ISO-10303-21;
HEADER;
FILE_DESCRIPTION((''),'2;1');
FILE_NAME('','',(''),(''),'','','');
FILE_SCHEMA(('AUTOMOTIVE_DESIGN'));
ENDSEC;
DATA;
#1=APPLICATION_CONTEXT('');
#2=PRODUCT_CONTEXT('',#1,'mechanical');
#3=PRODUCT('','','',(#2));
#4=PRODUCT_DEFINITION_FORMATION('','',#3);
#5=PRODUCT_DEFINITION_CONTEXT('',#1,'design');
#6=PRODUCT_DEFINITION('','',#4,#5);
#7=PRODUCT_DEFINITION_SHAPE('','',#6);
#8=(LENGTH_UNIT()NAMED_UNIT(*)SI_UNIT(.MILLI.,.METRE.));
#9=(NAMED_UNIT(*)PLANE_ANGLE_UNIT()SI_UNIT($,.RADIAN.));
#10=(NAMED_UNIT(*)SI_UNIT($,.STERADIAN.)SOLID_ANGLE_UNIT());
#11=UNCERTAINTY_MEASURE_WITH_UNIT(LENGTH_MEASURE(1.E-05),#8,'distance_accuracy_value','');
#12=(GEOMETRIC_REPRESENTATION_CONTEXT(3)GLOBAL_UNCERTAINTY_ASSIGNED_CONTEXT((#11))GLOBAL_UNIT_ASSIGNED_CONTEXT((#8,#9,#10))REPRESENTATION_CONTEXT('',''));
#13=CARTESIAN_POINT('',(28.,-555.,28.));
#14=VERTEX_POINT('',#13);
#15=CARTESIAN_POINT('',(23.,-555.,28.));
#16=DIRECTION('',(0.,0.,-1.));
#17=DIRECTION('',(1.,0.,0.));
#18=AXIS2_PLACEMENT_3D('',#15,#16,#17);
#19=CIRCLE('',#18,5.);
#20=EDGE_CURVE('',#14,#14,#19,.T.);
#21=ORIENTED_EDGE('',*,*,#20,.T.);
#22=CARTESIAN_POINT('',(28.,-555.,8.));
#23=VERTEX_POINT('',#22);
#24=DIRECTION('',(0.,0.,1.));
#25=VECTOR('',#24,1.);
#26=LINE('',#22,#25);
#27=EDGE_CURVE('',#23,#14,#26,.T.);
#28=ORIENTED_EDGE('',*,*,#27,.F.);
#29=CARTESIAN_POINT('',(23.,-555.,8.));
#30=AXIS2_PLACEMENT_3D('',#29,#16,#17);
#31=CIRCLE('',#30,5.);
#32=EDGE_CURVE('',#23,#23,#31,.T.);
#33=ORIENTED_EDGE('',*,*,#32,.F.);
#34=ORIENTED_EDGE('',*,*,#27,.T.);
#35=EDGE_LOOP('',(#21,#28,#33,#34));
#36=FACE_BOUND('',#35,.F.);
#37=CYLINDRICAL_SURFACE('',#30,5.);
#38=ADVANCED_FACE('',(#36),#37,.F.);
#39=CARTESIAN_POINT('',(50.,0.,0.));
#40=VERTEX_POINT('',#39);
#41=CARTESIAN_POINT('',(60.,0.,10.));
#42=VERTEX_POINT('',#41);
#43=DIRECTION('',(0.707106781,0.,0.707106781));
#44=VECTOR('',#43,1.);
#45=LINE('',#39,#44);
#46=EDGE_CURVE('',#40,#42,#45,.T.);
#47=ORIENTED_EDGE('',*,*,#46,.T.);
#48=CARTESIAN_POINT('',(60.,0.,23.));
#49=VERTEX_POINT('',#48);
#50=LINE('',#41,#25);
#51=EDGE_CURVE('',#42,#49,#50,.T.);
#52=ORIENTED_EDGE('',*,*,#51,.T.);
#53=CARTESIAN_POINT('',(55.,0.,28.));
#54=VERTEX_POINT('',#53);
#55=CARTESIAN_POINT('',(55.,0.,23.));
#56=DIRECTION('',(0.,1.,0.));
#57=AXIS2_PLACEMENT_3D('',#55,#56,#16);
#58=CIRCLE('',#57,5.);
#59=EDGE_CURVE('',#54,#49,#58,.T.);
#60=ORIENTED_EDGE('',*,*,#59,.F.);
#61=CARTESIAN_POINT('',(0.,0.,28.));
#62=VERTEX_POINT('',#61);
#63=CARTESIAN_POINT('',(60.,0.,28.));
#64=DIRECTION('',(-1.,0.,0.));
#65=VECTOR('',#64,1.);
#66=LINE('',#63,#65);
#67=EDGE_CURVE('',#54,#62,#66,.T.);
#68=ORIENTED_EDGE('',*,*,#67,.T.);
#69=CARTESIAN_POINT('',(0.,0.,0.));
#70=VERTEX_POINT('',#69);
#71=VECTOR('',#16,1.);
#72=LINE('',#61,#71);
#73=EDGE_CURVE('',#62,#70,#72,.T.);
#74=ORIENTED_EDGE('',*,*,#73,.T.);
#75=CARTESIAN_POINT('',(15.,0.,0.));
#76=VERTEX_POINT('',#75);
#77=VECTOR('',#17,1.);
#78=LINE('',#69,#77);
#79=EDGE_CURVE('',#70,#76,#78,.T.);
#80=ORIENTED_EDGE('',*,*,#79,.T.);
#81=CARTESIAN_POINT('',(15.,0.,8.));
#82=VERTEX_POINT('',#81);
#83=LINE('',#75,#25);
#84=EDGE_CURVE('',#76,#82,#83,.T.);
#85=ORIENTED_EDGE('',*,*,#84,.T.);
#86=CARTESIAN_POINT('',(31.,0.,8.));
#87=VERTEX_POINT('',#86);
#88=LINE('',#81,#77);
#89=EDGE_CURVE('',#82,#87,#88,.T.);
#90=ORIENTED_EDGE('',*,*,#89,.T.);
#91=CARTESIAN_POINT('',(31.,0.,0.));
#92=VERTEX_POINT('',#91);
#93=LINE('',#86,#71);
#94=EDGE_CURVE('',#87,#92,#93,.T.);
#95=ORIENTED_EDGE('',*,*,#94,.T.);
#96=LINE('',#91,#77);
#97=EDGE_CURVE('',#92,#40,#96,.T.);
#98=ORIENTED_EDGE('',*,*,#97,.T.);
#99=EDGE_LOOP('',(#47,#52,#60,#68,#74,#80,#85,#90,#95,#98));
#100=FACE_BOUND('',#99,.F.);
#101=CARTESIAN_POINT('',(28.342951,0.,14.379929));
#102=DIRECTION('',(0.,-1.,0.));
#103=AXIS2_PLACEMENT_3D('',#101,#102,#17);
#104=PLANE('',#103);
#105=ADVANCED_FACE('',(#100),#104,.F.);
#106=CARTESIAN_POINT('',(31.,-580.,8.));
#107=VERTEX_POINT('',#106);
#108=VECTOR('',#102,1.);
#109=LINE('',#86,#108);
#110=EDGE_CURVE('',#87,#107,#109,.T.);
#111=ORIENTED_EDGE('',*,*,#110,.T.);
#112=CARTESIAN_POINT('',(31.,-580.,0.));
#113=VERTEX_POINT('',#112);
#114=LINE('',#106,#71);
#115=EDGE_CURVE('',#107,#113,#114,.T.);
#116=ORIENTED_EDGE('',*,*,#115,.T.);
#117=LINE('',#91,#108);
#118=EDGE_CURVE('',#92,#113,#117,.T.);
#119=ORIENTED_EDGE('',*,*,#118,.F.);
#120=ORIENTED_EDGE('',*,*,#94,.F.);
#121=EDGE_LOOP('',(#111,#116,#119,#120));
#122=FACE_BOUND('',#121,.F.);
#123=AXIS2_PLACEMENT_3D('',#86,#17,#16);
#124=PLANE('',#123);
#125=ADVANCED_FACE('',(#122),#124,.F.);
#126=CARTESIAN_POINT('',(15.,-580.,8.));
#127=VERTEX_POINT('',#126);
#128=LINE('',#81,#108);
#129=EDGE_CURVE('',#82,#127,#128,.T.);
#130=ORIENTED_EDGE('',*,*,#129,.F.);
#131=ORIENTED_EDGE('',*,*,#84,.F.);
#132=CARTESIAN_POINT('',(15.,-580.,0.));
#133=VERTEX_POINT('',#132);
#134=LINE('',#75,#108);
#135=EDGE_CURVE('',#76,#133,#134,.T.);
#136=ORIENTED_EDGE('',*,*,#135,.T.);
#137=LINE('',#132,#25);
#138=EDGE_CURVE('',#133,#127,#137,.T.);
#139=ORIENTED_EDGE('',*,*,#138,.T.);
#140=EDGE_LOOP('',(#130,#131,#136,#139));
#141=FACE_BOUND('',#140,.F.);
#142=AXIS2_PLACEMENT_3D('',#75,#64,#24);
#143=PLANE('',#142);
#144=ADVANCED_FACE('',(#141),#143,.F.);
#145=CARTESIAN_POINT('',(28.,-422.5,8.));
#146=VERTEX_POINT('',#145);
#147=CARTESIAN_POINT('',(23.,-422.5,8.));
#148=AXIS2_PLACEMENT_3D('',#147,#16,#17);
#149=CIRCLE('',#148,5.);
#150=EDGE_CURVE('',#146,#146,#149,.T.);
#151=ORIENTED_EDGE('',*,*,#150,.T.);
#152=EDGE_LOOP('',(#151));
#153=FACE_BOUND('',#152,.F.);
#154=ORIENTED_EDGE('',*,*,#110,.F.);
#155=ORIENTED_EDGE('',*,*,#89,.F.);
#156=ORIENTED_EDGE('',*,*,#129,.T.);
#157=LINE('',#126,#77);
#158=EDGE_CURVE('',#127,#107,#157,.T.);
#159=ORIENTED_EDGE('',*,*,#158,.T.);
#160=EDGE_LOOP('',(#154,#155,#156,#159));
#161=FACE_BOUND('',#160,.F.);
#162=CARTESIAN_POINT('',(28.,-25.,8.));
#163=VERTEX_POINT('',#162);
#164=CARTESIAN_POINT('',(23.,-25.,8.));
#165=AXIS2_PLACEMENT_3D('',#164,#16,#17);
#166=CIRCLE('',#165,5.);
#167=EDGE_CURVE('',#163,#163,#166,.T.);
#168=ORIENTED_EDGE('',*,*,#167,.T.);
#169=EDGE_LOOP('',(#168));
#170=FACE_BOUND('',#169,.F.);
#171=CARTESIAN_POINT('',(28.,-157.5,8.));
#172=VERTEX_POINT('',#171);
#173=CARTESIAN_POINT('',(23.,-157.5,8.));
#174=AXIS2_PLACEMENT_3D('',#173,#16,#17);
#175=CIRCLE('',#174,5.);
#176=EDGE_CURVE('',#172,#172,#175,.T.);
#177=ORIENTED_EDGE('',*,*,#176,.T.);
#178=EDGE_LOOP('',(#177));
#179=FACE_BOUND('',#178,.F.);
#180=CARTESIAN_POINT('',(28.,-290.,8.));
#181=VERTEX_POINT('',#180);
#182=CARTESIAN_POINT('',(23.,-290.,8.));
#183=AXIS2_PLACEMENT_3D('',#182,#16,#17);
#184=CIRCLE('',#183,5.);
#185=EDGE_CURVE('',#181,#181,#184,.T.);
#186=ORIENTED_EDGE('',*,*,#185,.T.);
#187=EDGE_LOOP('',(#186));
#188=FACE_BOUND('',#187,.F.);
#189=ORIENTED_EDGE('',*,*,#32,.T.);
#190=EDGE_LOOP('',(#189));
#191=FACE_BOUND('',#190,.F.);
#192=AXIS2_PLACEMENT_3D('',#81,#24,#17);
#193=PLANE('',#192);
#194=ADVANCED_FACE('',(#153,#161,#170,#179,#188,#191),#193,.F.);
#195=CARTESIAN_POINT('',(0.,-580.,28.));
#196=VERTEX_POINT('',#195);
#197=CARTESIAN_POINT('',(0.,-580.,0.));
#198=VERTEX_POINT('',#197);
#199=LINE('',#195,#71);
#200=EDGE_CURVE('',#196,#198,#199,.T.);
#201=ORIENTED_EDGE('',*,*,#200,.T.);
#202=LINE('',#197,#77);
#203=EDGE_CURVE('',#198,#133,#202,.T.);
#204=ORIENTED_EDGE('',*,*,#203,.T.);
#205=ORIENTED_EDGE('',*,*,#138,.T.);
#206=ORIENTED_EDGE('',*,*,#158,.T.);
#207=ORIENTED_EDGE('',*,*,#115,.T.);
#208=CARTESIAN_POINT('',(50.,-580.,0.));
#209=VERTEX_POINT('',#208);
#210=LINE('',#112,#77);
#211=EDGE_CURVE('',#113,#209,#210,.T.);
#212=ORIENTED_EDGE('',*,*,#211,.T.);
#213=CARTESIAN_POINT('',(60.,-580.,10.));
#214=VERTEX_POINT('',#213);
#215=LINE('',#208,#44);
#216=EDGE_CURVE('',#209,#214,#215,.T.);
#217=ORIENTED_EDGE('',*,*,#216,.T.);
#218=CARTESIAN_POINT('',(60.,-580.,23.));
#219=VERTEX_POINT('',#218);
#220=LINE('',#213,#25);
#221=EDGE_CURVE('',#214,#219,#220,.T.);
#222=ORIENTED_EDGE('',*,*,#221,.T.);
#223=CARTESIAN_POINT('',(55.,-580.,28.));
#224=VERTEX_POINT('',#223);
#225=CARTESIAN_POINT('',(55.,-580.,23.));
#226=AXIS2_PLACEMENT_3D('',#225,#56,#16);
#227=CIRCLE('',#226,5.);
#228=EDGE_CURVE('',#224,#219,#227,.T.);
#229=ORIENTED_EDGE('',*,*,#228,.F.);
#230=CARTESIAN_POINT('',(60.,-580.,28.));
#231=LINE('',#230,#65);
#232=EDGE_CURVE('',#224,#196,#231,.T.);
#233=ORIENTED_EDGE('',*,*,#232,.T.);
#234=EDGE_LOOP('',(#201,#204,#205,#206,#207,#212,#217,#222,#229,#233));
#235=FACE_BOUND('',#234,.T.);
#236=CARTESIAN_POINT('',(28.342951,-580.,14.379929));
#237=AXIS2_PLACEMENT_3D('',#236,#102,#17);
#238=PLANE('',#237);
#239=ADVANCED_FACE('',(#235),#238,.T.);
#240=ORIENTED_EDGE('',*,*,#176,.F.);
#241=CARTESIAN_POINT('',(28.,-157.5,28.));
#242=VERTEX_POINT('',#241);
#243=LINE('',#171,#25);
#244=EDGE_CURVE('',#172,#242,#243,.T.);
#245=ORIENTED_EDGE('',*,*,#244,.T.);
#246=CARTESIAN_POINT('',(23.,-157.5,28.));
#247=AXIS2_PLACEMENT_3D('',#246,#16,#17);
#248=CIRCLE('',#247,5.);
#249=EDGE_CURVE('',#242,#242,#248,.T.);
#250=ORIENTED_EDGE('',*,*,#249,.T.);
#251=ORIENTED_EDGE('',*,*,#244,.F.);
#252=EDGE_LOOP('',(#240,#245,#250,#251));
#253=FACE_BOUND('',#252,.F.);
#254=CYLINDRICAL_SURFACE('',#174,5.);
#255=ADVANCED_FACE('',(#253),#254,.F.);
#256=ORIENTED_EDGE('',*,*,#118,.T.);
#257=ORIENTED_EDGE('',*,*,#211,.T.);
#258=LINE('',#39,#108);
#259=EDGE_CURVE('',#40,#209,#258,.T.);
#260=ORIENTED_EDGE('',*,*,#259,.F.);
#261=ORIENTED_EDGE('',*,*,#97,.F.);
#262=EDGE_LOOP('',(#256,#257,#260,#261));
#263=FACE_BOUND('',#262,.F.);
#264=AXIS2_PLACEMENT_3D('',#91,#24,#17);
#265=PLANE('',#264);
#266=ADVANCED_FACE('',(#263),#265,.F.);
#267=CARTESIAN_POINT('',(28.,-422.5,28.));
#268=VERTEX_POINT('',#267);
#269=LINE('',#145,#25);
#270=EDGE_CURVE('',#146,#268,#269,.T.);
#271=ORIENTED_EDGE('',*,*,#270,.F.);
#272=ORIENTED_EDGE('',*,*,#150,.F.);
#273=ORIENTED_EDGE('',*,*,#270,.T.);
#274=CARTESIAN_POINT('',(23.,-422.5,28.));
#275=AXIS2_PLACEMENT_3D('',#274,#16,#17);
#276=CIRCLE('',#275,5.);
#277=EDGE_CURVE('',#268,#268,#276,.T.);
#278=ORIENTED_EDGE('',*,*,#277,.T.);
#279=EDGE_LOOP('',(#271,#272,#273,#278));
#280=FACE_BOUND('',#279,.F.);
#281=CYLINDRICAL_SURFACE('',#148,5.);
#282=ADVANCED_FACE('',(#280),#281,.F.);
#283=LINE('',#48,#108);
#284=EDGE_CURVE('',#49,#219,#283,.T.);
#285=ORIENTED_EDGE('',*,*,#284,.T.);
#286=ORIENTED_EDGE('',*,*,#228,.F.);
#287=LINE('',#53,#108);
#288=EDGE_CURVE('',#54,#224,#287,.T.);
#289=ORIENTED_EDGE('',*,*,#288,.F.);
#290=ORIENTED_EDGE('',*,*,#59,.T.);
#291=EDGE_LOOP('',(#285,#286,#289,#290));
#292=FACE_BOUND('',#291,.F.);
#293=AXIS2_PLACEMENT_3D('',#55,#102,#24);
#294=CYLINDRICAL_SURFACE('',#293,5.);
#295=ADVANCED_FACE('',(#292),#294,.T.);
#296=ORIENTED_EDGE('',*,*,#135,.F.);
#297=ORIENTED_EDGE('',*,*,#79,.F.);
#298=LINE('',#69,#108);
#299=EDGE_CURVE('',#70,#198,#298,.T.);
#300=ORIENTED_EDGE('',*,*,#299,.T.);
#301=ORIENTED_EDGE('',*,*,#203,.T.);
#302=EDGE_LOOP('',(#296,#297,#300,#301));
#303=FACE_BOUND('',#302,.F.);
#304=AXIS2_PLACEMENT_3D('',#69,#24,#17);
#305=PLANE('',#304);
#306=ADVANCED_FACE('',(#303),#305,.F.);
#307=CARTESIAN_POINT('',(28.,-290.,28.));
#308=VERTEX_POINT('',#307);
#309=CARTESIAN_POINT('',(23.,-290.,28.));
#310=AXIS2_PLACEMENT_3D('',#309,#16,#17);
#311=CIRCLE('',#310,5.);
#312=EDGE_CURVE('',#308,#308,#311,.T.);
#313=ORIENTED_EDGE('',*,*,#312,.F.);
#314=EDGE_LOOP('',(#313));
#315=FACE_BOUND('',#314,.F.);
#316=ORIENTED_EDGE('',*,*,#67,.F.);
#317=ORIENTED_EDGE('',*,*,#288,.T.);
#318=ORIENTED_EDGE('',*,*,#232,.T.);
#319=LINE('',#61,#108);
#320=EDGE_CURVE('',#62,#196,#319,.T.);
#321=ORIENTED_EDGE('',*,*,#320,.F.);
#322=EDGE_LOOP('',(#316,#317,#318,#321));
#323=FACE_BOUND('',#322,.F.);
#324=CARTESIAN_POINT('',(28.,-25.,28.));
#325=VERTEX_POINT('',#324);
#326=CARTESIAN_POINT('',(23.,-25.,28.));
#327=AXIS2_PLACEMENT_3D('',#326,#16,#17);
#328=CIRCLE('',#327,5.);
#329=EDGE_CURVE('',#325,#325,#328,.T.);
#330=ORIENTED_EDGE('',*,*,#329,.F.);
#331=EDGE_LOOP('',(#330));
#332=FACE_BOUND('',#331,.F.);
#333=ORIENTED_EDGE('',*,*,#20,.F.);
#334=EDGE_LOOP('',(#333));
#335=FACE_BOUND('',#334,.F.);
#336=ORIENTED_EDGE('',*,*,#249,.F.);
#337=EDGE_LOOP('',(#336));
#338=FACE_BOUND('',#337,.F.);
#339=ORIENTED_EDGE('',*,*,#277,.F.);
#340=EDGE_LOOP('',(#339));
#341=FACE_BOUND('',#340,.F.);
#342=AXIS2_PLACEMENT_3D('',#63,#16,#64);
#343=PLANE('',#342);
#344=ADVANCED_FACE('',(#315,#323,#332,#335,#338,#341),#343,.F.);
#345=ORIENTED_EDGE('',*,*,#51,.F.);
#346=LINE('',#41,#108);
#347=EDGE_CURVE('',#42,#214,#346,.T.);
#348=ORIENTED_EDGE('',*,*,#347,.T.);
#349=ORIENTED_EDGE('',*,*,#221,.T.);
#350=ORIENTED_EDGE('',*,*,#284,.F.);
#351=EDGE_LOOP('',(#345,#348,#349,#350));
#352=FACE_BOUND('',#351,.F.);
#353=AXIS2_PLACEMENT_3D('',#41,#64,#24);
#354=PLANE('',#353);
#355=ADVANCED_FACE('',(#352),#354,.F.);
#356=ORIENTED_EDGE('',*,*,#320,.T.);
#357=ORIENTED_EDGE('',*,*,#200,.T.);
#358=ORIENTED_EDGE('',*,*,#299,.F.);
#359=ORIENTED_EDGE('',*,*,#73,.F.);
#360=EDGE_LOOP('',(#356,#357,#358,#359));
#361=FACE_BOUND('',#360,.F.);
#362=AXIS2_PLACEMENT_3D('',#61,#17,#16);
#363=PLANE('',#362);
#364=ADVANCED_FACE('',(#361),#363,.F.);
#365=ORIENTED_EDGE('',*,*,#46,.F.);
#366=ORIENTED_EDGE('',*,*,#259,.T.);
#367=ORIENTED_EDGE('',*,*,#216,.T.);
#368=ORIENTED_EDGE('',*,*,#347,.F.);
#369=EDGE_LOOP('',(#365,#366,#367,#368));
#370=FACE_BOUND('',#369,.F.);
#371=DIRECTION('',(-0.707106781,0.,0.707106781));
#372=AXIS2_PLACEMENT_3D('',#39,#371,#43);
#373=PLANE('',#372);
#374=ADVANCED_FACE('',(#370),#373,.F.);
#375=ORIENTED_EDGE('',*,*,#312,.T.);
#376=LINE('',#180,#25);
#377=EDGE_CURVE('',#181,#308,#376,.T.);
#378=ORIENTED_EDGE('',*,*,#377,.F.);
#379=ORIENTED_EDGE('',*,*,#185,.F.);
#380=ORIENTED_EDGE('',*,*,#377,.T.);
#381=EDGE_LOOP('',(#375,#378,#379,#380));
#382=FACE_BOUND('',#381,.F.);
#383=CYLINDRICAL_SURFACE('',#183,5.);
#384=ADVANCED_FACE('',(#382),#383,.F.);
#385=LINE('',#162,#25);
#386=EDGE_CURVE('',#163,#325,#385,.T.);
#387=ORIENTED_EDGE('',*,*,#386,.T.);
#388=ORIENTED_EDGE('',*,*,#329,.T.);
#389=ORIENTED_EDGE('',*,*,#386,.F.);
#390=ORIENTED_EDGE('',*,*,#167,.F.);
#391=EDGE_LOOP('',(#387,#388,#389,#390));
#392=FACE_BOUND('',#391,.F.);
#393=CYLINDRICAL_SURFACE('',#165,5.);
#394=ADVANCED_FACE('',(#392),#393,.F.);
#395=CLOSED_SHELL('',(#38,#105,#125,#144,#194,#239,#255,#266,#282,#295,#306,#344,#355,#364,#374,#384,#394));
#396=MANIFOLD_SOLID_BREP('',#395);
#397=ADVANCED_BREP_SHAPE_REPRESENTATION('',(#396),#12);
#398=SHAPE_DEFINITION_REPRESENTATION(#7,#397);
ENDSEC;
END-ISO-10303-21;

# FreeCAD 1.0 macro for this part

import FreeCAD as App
import Part
import Sketcher

V = App.Vector


def edges_at(feature, points):
    """Names of the edges that pass closest to the given points."""
    edges = feature.Shape.Edges
    near = lambda p: min(range(len(edges)), key=lambda i: edges[i].distToShape(Part.Vertex(*p))[0])
    return sorted({f"Edge{near(p) + 1}" for p in points})


def add_polygon(sketch, points):
    """Adds a closed chain of lines whose ends are joined by coincident constraints."""
    first, n = sketch.GeometryCount, len(points)
    for a, b in zip(points, points[1:] + points[:1]):
        sketch.addGeometry(Part.LineSegment(App.Vector(*a, 0), App.Vector(*b, 0)), False)
    for i in range(n):
        sketch.addConstraint(Sketcher.Constraint("Coincident", first + i, 2, first + (i + 1) % n, 1))

doc = App.newDocument("Part")
body = doc.addObject("PartDesign::Body", "Body")

# Sketch on XZ plane
sketch1 = doc.addObject("Sketcher::SketchObject", "Sketch")
body.addObject(sketch1)
sketch1.AttachmentSupport = (doc.XZ_Plane, [""])
sketch1.MapMode = "FlatFace"
add_polygon(sketch1, [(0, 28), (0, 0), (15, 0), (15, 8), (31, 8), (31, 0), (50, 0), (60, 10), (60, 28)])  # lines 0-8
sketch1.addConstraint([
    Sketcher.Constraint("Vertical", 0),
    Sketcher.Constraint("Horizontal", 1),
    Sketcher.Constraint("Vertical", 2),
    Sketcher.Constraint("Horizontal", 3),
    Sketcher.Constraint("Vertical", 4),
    Sketcher.Constraint("Horizontal", 5),
    Sketcher.Constraint("Vertical", 7),
    Sketcher.Constraint("Horizontal", 8),
    Sketcher.Constraint("Coincident", 0, 2, -1, 1),
    Sketcher.Constraint("PointOnObject", 4, 2, -1),
    Sketcher.Constraint("DistanceX", 1, 1, 1, 2, 15.0),
    Sketcher.Constraint("DistanceX", 3, 1, 3, 2, 16.0),
    Sketcher.Constraint("DistanceX", 5, 1, 5, 2, 19.0),
    Sketcher.Constraint("DistanceX", 8, 2, 8, 1, 60.0),
    Sketcher.Constraint("DistanceY", 0, 2, 0, 1, 28.0),
    Sketcher.Constraint("DistanceY", 2, 1, 2, 2, 8.0),
    Sketcher.Constraint("DistanceY", 7, 1, 7, 2, 18.0),
])
pad1 = doc.addObject("PartDesign::Pad", "Pad")
body.addObject(pad1)
pad1.Profile = sketch1
pad1.Length = 580

# Sketch on XY plane
sketch2 = doc.addObject("Sketcher::SketchObject", "Sketch001")
body.addObject(sketch2)
sketch2.AttachmentSupport = (doc.XY_Plane, [""])
sketch2.MapMode = "FlatFace"
sketch2.AttachmentOffset = App.Placement(V(0, 0, 8), App.Rotation())
sketch2.addGeometry([
    Part.Circle(V(23, -25, 0), V(0, 0, 1), 5),  # 0
    Part.Circle(V(23, -158, 0), V(0, 0, 1), 5),  # 1
    Part.Circle(V(23, -290, 0), V(0, 0, 1), 5),  # 2
    Part.Circle(V(23, -422, 0), V(0, 0, 1), 5),  # 3
    Part.Circle(V(23, -555, 0), V(0, 0, 1), 5),  # 4
], False)
sketch2.addConstraint([
    Sketcher.Constraint("Equal", 0, 1),
    Sketcher.Constraint("Equal", 1, 2),
    Sketcher.Constraint("Equal", 2, 3),
    Sketcher.Constraint("Equal", 3, 4),
    Sketcher.Constraint("Vertical", 0, 3, 1, 3),
    Sketcher.Constraint("Vertical", 1, 3, 2, 3),
    Sketcher.Constraint("Vertical", 2, 3, 3, 3),
    Sketcher.Constraint("Vertical", 3, 3, 4, 3),
    Sketcher.Constraint("Diameter", 0, 10.0),
    Sketcher.Constraint("DistanceX", -1, 1, 0, 3, 23.0),
    Sketcher.Constraint("DistanceY", 0, 3, -1, 1, 25.0),
    Sketcher.Constraint("DistanceY", 2, 3, -1, 1, 290.0),
    Sketcher.Constraint("DistanceY", 4, 3, -1, 1, 555.0),
    Sketcher.Constraint("DistanceY", 3, 3, 1, 3, 265.0),
    Sketcher.Constraint("DistanceY", 1, 3, -1, 1, 157.5),
])
pocket1 = doc.addObject("PartDesign::Pocket", "Pocket")
body.addObject(pocket1)
pocket1.Profile = sketch2
pocket1.Type = "ThroughAll"
pocket1.Reversed = True
doc.recompute()

fillet = doc.addObject("PartDesign::Fillet", "Fillet")
body.addObject(fillet)
fillet.Base = (pocket1, edges_at(pocket1, [(60, -290, 28)]))
fillet.Radius = 5

doc.recompute()
